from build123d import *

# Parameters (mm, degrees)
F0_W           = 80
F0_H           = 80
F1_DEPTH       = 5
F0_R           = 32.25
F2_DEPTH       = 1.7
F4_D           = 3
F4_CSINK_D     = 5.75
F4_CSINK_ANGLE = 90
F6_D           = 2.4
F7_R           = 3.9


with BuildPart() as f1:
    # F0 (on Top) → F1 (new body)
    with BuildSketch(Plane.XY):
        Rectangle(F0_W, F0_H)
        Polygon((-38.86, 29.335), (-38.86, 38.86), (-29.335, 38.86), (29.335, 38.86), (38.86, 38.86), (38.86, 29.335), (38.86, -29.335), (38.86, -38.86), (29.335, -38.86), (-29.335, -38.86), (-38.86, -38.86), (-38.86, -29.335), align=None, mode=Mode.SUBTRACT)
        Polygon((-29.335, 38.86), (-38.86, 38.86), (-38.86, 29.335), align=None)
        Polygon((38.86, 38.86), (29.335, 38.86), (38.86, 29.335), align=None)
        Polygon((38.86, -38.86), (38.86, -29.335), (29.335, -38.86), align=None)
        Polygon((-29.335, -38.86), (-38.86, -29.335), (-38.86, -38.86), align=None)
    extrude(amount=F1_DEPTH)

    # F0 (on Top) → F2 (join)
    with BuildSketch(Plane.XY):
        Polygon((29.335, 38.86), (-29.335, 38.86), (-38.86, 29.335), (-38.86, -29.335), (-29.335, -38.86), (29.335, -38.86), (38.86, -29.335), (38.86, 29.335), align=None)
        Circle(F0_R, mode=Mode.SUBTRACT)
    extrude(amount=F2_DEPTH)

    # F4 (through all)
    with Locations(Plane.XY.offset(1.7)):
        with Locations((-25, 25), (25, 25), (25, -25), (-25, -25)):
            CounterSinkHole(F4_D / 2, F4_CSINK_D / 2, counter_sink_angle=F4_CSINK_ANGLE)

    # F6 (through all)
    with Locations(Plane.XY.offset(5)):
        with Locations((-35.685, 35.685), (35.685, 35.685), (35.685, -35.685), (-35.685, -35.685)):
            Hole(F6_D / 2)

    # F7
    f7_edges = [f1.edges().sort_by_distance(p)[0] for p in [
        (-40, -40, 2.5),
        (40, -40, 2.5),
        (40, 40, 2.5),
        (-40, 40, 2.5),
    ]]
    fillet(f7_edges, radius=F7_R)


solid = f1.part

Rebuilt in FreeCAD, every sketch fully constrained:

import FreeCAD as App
import Part
import Sketcher

V = App.Vector


def edges_at(feature, points):
    """Names of the edges that pass closest to the given points."""
    edges = feature.Shape.Edges
    near = lambda p: min(range(len(edges)), key=lambda i: edges[i].distToShape(Part.Vertex(*p))[0])
    return sorted({f"Edge{near(p) + 1}" for p in points})


def add_polygon(sketch, points):
    """Adds a closed chain of lines whose ends are joined by coincident constraints."""
    first, n = sketch.GeometryCount, len(points)
    for a, b in zip(points, points[1:] + points[:1]):
        sketch.addGeometry(Part.LineSegment(App.Vector(*a, 0), App.Vector(*b, 0)), False)
    for i in range(n):
        sketch.addConstraint(Sketcher.Constraint("Coincident", first + i, 2, first + (i + 1) % n, 1))

doc = App.newDocument("Part")
body = doc.addObject("PartDesign::Body", "Body")

sketch1 = body.newObject("Sketcher::SketchObject", "Sketch")
sketch1.AttachmentSupport = (doc.getObject("XY_Plane"), [""])
sketch1.MapMode = "FlatFace"
add_polygon(sketch1, [(-40, 40), (-40, -40), (40, -40), (40, 40)])
add_polygon(sketch1, [(-39, -29), (-39, 29), (-29, 39), (29, 39), (39, 29), (39, -29), (29, -39), (-29, -39)])
sketch1.addConstraint([
    Sketcher.Constraint("Vertical", 0),
    Sketcher.Constraint("Horizontal", 1),
    Sketcher.Constraint("Vertical", 2),
    Sketcher.Constraint("Horizontal", 3),
    Sketcher.Constraint("Vertical", 4),
    Sketcher.Constraint("Horizontal", 6),
    Sketcher.Constraint("Vertical", 8),
    Sketcher.Constraint("Horizontal", 10),
    Sketcher.Constraint("Symmetric", 0, 2, 2, 2, -1, 1),
    Sketcher.Constraint("Symmetric", 4, 2, 8, 2, -1, 1),
    Sketcher.Constraint("Symmetric", 5, 2, 9, 2, -1, 1),
    Sketcher.Constraint("Perpendicular", 5, 7),
    Sketcher.Constraint("Perpendicular", 9, 11),
    Sketcher.Constraint("Horizontal", 4, 2, 7, 2),
    Sketcher.Constraint("Horizontal", 8, 2, 11, 2),
    Sketcher.Constraint("Vertical", 6, 2, 9, 2),
    Sketcher.Constraint("Equal", 3, 0),
    Sketcher.Constraint("Equal", 10, 4),
    Sketcher.Constraint("DistanceX", 1, 1, 1, 2, 80.0),
    Sketcher.Constraint("DistanceX", 6, 1, 6, 2, 58.67),
    Sketcher.Constraint("DistanceX", 4, 2, -1, 1, 38.86),
])
pad1 = body.newObject("PartDesign::Pad", "Pad")
pad1.Profile = sketch1
pad1.Length = 5

sketch2 = body.newObject("Sketcher::SketchObject", "Sketch001")
sketch2.AttachmentSupport = (doc.getObject("XY_Plane"), [""])
sketch2.MapMode = "FlatFace"
add_polygon(sketch2, [(29, 39), (-29, 39), (-39, 29), (-39, -29), (-29, -39), (29, -39), (39, -29), (39, 29)])
sketch2.addGeometry(Part.Circle(V(0, 0, 0), V(0, 0, 1), 32), False)
sketch2.addConstraint([
    Sketcher.Constraint("Horizontal", 0),
    Sketcher.Constraint("Vertical", 2),
    Sketcher.Constraint("Horizontal", 4),
    Sketcher.Constraint("Vertical", 6),
    Sketcher.Constraint("Coincident", 8, 3, -1, 1),
    Sketcher.Constraint("Symmetric", 0, 2, 4, 2, -1, 1),
    Sketcher.Constraint("Symmetric", 1, 2, 5, 2, -1, 1),
    Sketcher.Constraint("Perpendicular", 1, 3),
    Sketcher.Constraint("Perpendicular", 5, 7),
    Sketcher.Constraint("Horizontal", 2, 2, 5, 2),
    Sketcher.Constraint("Horizontal", 1, 2, 6, 2),
    Sketcher.Constraint("Vertical", 0, 2, 3, 2),
    Sketcher.Constraint("Equal", 4, 2),
    Sketcher.Constraint("Diameter", 8, 64.5),
    Sketcher.Constraint("DistanceX", 0, 2, 0, 1, 58.67),
    Sketcher.Constraint("DistanceY", -1, 1, 0, 2, 38.86),
])
pad2 = body.newObject("PartDesign::Pad", "Pad001")
pad2.Profile = sketch2
pad2.Length = 1.7

sketch3 = body.newObject("Sketcher::SketchObject", "Sketch002")
sketch3.AttachmentSupport = (doc.getObject("XY_Plane"), [""])
sketch3.MapMode = "FlatFace"
sketch3.AttachmentOffset = App.Placement(V(0, 0, 1.7), App.Rotation())
sketch3.addGeometry([
    Part.Circle(V(-25, 25, 0), V(0, 0, 1), 1.5),
    Part.Circle(V(25, 25, 0), V(0, 0, 1), 1.5),
    Part.Circle(V(25, -25, 0), V(0, 0, 1), 1.5),
    Part.Circle(V(-25, -25, 0), V(0, 0, 1), 1.5),
], False)
sketch3.addConstraint([
    Sketcher.Constraint("Equal", 0, 1),
    Sketcher.Constraint("Equal", 1, 2),
    Sketcher.Constraint("Equal", 2, 3),
    Sketcher.Constraint("Symmetric", 0, 3, 2, 3, -1, 1),
    Sketcher.Constraint("Symmetric", 1, 3, 3, 3, -1, 1),
    Sketcher.Constraint("Symmetric", 0, 3, 1, 3, -2),
    Sketcher.Constraint("Diameter", 0, 3.0),
    Sketcher.Constraint("DistanceX", 0, 3, -1, 1, 25.0),
    Sketcher.Constraint("DistanceY", -1, 1, 0, 3, 25.0),
])
doc.recompute()
hole = body.newObject("PartDesign::Hole", "Hole")
hole.Profile = sketch3
hole.ThreadType = "None"
hole.Diameter = 3
hole.DepthType = "ThroughAll"
hole.HoleCutType = "Countersink"
hole.HoleCutDiameter = 5.75
hole.HoleCutCountersinkAngle = 90

sketch4 = body.newObject("Sketcher::SketchObject", "Sketch003")
sketch4.AttachmentSupport = (doc.getObject("XY_Plane"), [""])
sketch4.MapMode = "FlatFace"
sketch4.AttachmentOffset = App.Placement(V(0, 0, 5), App.Rotation())
sketch4.addGeometry([
    Part.Circle(V(-35.7, 35.7, 0), V(0, 0, 1), 1.2),
    Part.Circle(V(35.7, 35.7, 0), V(0, 0, 1), 1.2),
    Part.Circle(V(35.7, -35.7, 0), V(0, 0, 1), 1.2),
    Part.Circle(V(-35.7, -35.7, 0), V(0, 0, 1), 1.2),
], False)
sketch4.addConstraint([
    Sketcher.Constraint("Equal", 0, 1),
    Sketcher.Constraint("Equal", 1, 2),
    Sketcher.Constraint("Equal", 2, 3),
    Sketcher.Constraint("Symmetric", 0, 3, 2, 3, -1, 1),
    Sketcher.Constraint("Symmetric", 1, 3, 3, 3, -1, 1),
    Sketcher.Constraint("Symmetric", 0, 3, 1, 3, -2),
    Sketcher.Constraint("Diameter", 0, 2.4),
    Sketcher.Constraint("DistanceX", 0, 3, 1, 3, 71.37),
    Sketcher.Constraint("DistanceY", 2, 3, 1, 3, 71.37),
])
doc.recompute()
hole2 = body.newObject("PartDesign::Hole", "Hole001")
hole2.Profile = sketch4
hole2.ThreadType = "None"
hole2.Diameter = 2.4
hole2.DepthType = "ThroughAll"
doc.recompute()

fillet = body.newObject("PartDesign::Fillet", "Fillet")
fillet.Base = (hole2, edges_at(hole2, [
    (-40, -40, 2.5),
    (40, -40, 2.5),
    (40, 40, 2.5),
    (-40, 40, 2.5),
]))
fillet.Radius = 3.9

doc.recompute()
